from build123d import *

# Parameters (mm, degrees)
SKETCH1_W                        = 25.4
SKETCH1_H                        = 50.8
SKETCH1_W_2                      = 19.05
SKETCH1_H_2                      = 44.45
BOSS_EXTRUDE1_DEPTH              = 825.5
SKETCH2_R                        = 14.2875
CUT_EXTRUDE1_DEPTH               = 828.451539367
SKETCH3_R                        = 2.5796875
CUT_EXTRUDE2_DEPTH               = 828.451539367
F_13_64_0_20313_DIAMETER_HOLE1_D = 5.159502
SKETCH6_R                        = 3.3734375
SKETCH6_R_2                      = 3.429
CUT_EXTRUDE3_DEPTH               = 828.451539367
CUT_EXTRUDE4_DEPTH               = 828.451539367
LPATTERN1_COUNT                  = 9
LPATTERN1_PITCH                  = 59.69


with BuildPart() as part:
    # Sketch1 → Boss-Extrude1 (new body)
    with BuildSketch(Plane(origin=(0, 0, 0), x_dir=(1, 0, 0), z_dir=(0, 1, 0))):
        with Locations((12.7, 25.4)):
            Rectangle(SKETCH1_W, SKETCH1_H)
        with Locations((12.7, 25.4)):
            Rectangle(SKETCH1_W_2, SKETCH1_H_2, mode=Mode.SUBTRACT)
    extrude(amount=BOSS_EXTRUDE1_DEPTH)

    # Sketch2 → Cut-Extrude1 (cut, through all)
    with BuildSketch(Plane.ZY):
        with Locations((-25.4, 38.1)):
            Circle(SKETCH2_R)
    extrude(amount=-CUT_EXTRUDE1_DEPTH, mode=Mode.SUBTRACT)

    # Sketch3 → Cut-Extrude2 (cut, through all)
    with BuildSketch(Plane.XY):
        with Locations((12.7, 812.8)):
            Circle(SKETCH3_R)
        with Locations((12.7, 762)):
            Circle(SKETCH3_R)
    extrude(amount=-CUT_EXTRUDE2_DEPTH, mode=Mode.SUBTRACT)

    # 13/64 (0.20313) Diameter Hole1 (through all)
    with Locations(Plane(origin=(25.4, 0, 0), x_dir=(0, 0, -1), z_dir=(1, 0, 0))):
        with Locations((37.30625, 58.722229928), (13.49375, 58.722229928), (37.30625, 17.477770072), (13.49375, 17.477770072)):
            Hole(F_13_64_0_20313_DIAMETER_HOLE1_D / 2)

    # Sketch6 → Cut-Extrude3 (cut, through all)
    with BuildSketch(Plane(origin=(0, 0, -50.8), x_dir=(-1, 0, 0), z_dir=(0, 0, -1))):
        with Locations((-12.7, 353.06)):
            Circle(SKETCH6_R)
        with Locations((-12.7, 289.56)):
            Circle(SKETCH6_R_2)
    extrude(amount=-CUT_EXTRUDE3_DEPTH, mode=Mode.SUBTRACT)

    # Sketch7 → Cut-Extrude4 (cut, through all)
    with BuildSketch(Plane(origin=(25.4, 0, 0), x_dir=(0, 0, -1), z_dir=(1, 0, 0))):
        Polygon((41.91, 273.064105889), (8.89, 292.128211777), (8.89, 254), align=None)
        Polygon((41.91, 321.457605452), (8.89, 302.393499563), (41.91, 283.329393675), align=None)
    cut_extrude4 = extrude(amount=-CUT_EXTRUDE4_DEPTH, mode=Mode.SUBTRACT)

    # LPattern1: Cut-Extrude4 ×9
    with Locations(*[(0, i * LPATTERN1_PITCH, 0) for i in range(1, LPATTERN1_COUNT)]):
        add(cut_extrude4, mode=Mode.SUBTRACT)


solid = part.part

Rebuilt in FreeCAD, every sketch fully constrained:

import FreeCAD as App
import Part
import Sketcher

V = App.Vector
Q = App.Units.Quantity

doc = App.newDocument("Part")
body = doc.addObject("PartDesign::Body", "Body")

# Sketch on XZ plane
sketch1 = body.newObject("Sketcher::SketchObject", "Sketch")
sketch1.AttachmentSupport = (doc.getObject("XZ_Plane"), [""])
sketch1.MapMode = "FlatFace"
sketch1.addGeometry([
    Part.LineSegment(V(0, -50.8, 0), V(0, 0, 0)),  # 0
    Part.LineSegment(V(0, 0, 0), V(25.4, 0, 0)),  # 1
    Part.LineSegment(V(25.4, 0, 0), V(25.4, -50.8, 0)),  # 2
    Part.LineSegment(V(25.4, -50.8, 0), V(0, -50.8, 0)),  # 3
    Part.LineSegment(V(22.225, -3.175, 0), V(3.175, -3.175, 0)),  # 4
    Part.LineSegment(V(3.175, -3.175, 0), V(3.175, -47.625, 0)),  # 5
    Part.LineSegment(V(3.175, -47.625, 0), V(22.225, -47.625, 0)),  # 6
    Part.LineSegment(V(22.225, -47.625, 0), V(22.225, -3.175, 0)),  # 7
], False)
sketch1.addConstraint([
    Sketcher.Constraint("Coincident", 0, 2, 1, 1),
    Sketcher.Constraint("Coincident", 1, 2, 2, 1),
    Sketcher.Constraint("Coincident", 2, 2, 3, 1),
    Sketcher.Constraint("Coincident", 3, 2, 0, 1),
    Sketcher.Constraint("Coincident", 4, 2, 5, 1),
    Sketcher.Constraint("Coincident", 5, 2, 6, 1),
    Sketcher.Constraint("Coincident", 6, 2, 7, 1),
    Sketcher.Constraint("Coincident", 7, 2, 4, 1),
    Sketcher.Constraint("Vertical", 0),
    Sketcher.Constraint("Horizontal", 1),
    Sketcher.Constraint("Vertical", 2),
    Sketcher.Constraint("Horizontal", 3),
    Sketcher.Constraint("Horizontal", 4),
    Sketcher.Constraint("Vertical", 5),
    Sketcher.Constraint("Horizontal", 6),
    Sketcher.Constraint("Vertical", 7),
    Sketcher.Constraint("Coincident", 0, 2, -1, 1),
    Sketcher.Constraint("DistanceX", 1, 1, 1, 2, Q("1 in")),
    Sketcher.Constraint("DistanceY", 0, 1, 0, 2, Q("2 in")),
    Sketcher.Constraint("DistanceX", 4, 2, 4, 1, Q("0.75 in")),
    Sketcher.Constraint("DistanceY", 5, 2, 5, 1, Q("1.75 in")),
    Sketcher.Constraint("DistanceX", -1, 1, 4, 2, Q("0.125 in")),
    Sketcher.Constraint("DistanceY", 4, 2, -1, 1, Q("0.125 in")),
])
pad1 = body.newObject("PartDesign::Pad", "Pad")
pad1.Profile = sketch1
pad1.Length = Q("32.5 in")
pad1.Reversed = True

# Sketch on YZ plane
sketch2 = body.newObject("Sketcher::SketchObject", "Sketch001")
sketch2.AttachmentSupport = (doc.getObject("YZ_Plane"), [""])
sketch2.MapMode = "FlatFace"
sketch2.addGeometry(Part.Circle(V(38.1, -25.4, 0), V(0, 0, 1), 14.2875), False)
sketch2.addConstraint([
    Sketcher.Constraint("Diameter", 0, Q("1.125 in")),
    Sketcher.Constraint("DistanceY", 0, 3, -1, 1, Q("1 in")),
    Sketcher.Constraint("DistanceX", -1, 1, 0, 3, Q("1.5 in")),
])
pocket1 = body.newObject("PartDesign::Pocket", "Pocket")
pocket1.Profile = sketch2
pocket1.Type = "ThroughAll"
pocket1.Reversed = True

# Sketch on XY plane
sketch3 = body.newObject("Sketcher::SketchObject", "Sketch002")
sketch3.AttachmentSupport = (doc.getObject("XY_Plane"), [""])
sketch3.MapMode = "FlatFace"
sketch3.addGeometry([
    Part.Circle(V(12.7, 812.8, 0), V(0, 0, 1), 2.579687),
    Part.Circle(V(12.7, 762, 0), V(0, 0, 1), 2.579687),
], False)
sketch3.addConstraint([
    Sketcher.Constraint("Equal", 0, 1),
    Sketcher.Constraint("Vertical", 0, 3, 1, 3),
    Sketcher.Constraint("Diameter", 0, Q("0.203125 in")),
    Sketcher.Constraint("DistanceY", -1, 1, 0, 3, Q("32 in")),
    Sketcher.Constraint("DistanceY", -1, 1, 1, 3, Q("30 in")),
    Sketcher.Constraint("DistanceX", -1, 1, 0, 3, Q("0.5 in")),
])
pocket2 = body.newObject("PartDesign::Pocket", "Pocket001")
pocket2.Profile = sketch3
pocket2.Type = "ThroughAll"

# Sketch on YZ plane
sketch4 = body.newObject("Sketcher::SketchObject", "Sketch003")
sketch4.AttachmentSupport = (doc.getObject("YZ_Plane"), [""])
sketch4.MapMode = "FlatFace"
sketch4.AttachmentOffset = App.Placement(V(0, 0, 1 * 25.4), App.Rotation())
sketch4.addGeometry([
    Part.Circle(V(58.72223, -37.30625, 0), V(0, 0, 1), 2.579751),
    Part.Circle(V(58.72223, -13.49375, 0), V(0, 0, 1), 2.579751),
    Part.Circle(V(17.47777, -37.30625, 0), V(0, 0, 1), 2.579751),
    Part.Circle(V(17.47777, -13.49375, 0), V(0, 0, 1), 2.579751),
], False)
sketch4.addConstraint([
    Sketcher.Constraint("Equal", 0, 1),
    Sketcher.Constraint("Equal", 1, 2),
    Sketcher.Constraint("Equal", 2, 3),
    Sketcher.Constraint("Horizontal", 0, 3, 2, 3),
    Sketcher.Constraint("Horizontal", 1, 3, 3, 3),
    Sketcher.Constraint("Vertical", 0, 3, 1, 3),
    Sketcher.Constraint("Vertical", 2, 3, 3, 3),
    Sketcher.Constraint("Diameter", 0, 5.159502),
    Sketcher.Constraint("DistanceY", 0, 3, -1, 1, Q("1.46875 in")),
    Sketcher.Constraint("DistanceY", 1, 3, -1, 1, Q("0.53125 in")),
    Sketcher.Constraint("DistanceX", -1, 1, 0, 3, 58.72223),
    Sketcher.Constraint("DistanceX", -1, 1, 2, 3, 17.47777),
])
doc.recompute()
hole = body.newObject("PartDesign::Hole", "Hole")
hole.Profile = sketch4
hole.ThreadType = "None"
hole.Diameter = 5.159502
hole.DepthType = "ThroughAll"

# Sketch on XY plane
sketch5 = body.newObject("Sketcher::SketchObject", "Sketch004")
sketch5.AttachmentSupport = (doc.getObject("XY_Plane"), [""])
sketch5.MapMode = "FlatFace"
sketch5.AttachmentOffset = App.Placement(V(0, 0, -2 * 25.4), App.Rotation())
sketch5.addGeometry([
    Part.Circle(V(12.7, 353.06, 0), V(0, 0, 1), 3.373438),
    Part.Circle(V(12.7, 289.56, 0), V(0, 0, 1), 3.429),
], False)
sketch5.addConstraint([
    Sketcher.Constraint("Vertical", 0, 3, 1, 3),
    Sketcher.Constraint("Diameter", 1, Q("0.27 in")),
    Sketcher.Constraint("Diameter", 0, Q("0.265625 in")),
    Sketcher.Constraint("DistanceX", -1, 1, 0, 3, Q("0.5 in")),
    Sketcher.Constraint("DistanceY", -1, 1, 0, 3, Q("13.9 in")),
    Sketcher.Constraint("DistanceY", -1, 1, 1, 3, Q("11.4 in")),
])
pocket3 = body.newObject("PartDesign::Pocket", "Pocket002")
pocket3.Profile = sketch5
pocket3.Type = "ThroughAll"
pocket3.Reversed = True

# Sketch on YZ plane
sketch6 = body.newObject("Sketcher::SketchObject", "Sketch005")
sketch6.AttachmentSupport = (doc.getObject("YZ_Plane"), [""])
sketch6.MapMode = "FlatFace"
sketch6.AttachmentOffset = App.Placement(V(0, 0, 1 * 25.4), App.Rotation())
sketch6.addGeometry([
    Part.LineSegment(V(273.064106, -41.91, 0), V(292.128212, -8.89, 0)),  # 0
    Part.LineSegment(V(292.128212, -8.89, 0), V(254, -8.89, 0)),  # 1
    Part.LineSegment(V(254, -8.89, 0), V(273.064106, -41.91, 0)),  # 2
    Part.LineSegment(V(321.457605, -41.91, 0), V(302.3935, -8.89, 0)),  # 3
    Part.LineSegment(V(302.3935, -8.89, 0), V(283.329394, -41.91, 0)),  # 4
    Part.LineSegment(V(283.329394, -41.91, 0), V(321.457605, -41.91, 0)),  # 5
], False)
sketch6.addConstraint([
    Sketcher.Constraint("Coincident", 0, 2, 1, 1),
    Sketcher.Constraint("Coincident", 1, 2, 2, 1),
    Sketcher.Constraint("Coincident", 2, 2, 0, 1),
    Sketcher.Constraint("Coincident", 3, 2, 4, 1),
    Sketcher.Constraint("Coincident", 4, 2, 5, 1),
    Sketcher.Constraint("Coincident", 5, 2, 3, 1),
    Sketcher.Constraint("Horizontal", 1),
    Sketcher.Constraint("Horizontal", 5),
    Sketcher.Constraint("Parallel", 2, 3),
    Sketcher.Constraint("Parallel", 0, 4),
    Sketcher.Constraint("Horizontal", 1, 2, 3, 2),
    Sketcher.Constraint("Horizontal", 2, 2, 4, 2),
    Sketcher.Constraint("Equal", 0, 2),
    Sketcher.Constraint("DistanceX", -1, 1, 1, 2, Q("10 in")),
    Sketcher.Constraint("Angle", 0, Q("60 deg")),
    Sketcher.Constraint("DistanceY", 2, 2, 0, 2, Q("1.3 in")),
    Sketcher.Constraint("DistanceY", 0, 2, -1, 1, Q("0.35 in")),
    Sketcher.Constraint("DistanceX", -1, 1, 3, 2, 302.3935),
])
pocket4 = body.newObject("PartDesign::Pocket", "Pocket003")
pocket4.Profile = sketch6
pocket4.Type = "ThroughAll"
doc.recompute()

linearpattern = body.newObject("PartDesign::LinearPattern", "LinearPattern")
linearpattern.Originals = [pocket4]
linearpattern.Direction = (doc.getObject("Y_Axis"), [""])
linearpattern.Mode = "offset"
linearpattern.Offset = Q("2.35 in")
linearpattern.Occurrences = 9
body.Tip = linearpattern

doc.recompute()
